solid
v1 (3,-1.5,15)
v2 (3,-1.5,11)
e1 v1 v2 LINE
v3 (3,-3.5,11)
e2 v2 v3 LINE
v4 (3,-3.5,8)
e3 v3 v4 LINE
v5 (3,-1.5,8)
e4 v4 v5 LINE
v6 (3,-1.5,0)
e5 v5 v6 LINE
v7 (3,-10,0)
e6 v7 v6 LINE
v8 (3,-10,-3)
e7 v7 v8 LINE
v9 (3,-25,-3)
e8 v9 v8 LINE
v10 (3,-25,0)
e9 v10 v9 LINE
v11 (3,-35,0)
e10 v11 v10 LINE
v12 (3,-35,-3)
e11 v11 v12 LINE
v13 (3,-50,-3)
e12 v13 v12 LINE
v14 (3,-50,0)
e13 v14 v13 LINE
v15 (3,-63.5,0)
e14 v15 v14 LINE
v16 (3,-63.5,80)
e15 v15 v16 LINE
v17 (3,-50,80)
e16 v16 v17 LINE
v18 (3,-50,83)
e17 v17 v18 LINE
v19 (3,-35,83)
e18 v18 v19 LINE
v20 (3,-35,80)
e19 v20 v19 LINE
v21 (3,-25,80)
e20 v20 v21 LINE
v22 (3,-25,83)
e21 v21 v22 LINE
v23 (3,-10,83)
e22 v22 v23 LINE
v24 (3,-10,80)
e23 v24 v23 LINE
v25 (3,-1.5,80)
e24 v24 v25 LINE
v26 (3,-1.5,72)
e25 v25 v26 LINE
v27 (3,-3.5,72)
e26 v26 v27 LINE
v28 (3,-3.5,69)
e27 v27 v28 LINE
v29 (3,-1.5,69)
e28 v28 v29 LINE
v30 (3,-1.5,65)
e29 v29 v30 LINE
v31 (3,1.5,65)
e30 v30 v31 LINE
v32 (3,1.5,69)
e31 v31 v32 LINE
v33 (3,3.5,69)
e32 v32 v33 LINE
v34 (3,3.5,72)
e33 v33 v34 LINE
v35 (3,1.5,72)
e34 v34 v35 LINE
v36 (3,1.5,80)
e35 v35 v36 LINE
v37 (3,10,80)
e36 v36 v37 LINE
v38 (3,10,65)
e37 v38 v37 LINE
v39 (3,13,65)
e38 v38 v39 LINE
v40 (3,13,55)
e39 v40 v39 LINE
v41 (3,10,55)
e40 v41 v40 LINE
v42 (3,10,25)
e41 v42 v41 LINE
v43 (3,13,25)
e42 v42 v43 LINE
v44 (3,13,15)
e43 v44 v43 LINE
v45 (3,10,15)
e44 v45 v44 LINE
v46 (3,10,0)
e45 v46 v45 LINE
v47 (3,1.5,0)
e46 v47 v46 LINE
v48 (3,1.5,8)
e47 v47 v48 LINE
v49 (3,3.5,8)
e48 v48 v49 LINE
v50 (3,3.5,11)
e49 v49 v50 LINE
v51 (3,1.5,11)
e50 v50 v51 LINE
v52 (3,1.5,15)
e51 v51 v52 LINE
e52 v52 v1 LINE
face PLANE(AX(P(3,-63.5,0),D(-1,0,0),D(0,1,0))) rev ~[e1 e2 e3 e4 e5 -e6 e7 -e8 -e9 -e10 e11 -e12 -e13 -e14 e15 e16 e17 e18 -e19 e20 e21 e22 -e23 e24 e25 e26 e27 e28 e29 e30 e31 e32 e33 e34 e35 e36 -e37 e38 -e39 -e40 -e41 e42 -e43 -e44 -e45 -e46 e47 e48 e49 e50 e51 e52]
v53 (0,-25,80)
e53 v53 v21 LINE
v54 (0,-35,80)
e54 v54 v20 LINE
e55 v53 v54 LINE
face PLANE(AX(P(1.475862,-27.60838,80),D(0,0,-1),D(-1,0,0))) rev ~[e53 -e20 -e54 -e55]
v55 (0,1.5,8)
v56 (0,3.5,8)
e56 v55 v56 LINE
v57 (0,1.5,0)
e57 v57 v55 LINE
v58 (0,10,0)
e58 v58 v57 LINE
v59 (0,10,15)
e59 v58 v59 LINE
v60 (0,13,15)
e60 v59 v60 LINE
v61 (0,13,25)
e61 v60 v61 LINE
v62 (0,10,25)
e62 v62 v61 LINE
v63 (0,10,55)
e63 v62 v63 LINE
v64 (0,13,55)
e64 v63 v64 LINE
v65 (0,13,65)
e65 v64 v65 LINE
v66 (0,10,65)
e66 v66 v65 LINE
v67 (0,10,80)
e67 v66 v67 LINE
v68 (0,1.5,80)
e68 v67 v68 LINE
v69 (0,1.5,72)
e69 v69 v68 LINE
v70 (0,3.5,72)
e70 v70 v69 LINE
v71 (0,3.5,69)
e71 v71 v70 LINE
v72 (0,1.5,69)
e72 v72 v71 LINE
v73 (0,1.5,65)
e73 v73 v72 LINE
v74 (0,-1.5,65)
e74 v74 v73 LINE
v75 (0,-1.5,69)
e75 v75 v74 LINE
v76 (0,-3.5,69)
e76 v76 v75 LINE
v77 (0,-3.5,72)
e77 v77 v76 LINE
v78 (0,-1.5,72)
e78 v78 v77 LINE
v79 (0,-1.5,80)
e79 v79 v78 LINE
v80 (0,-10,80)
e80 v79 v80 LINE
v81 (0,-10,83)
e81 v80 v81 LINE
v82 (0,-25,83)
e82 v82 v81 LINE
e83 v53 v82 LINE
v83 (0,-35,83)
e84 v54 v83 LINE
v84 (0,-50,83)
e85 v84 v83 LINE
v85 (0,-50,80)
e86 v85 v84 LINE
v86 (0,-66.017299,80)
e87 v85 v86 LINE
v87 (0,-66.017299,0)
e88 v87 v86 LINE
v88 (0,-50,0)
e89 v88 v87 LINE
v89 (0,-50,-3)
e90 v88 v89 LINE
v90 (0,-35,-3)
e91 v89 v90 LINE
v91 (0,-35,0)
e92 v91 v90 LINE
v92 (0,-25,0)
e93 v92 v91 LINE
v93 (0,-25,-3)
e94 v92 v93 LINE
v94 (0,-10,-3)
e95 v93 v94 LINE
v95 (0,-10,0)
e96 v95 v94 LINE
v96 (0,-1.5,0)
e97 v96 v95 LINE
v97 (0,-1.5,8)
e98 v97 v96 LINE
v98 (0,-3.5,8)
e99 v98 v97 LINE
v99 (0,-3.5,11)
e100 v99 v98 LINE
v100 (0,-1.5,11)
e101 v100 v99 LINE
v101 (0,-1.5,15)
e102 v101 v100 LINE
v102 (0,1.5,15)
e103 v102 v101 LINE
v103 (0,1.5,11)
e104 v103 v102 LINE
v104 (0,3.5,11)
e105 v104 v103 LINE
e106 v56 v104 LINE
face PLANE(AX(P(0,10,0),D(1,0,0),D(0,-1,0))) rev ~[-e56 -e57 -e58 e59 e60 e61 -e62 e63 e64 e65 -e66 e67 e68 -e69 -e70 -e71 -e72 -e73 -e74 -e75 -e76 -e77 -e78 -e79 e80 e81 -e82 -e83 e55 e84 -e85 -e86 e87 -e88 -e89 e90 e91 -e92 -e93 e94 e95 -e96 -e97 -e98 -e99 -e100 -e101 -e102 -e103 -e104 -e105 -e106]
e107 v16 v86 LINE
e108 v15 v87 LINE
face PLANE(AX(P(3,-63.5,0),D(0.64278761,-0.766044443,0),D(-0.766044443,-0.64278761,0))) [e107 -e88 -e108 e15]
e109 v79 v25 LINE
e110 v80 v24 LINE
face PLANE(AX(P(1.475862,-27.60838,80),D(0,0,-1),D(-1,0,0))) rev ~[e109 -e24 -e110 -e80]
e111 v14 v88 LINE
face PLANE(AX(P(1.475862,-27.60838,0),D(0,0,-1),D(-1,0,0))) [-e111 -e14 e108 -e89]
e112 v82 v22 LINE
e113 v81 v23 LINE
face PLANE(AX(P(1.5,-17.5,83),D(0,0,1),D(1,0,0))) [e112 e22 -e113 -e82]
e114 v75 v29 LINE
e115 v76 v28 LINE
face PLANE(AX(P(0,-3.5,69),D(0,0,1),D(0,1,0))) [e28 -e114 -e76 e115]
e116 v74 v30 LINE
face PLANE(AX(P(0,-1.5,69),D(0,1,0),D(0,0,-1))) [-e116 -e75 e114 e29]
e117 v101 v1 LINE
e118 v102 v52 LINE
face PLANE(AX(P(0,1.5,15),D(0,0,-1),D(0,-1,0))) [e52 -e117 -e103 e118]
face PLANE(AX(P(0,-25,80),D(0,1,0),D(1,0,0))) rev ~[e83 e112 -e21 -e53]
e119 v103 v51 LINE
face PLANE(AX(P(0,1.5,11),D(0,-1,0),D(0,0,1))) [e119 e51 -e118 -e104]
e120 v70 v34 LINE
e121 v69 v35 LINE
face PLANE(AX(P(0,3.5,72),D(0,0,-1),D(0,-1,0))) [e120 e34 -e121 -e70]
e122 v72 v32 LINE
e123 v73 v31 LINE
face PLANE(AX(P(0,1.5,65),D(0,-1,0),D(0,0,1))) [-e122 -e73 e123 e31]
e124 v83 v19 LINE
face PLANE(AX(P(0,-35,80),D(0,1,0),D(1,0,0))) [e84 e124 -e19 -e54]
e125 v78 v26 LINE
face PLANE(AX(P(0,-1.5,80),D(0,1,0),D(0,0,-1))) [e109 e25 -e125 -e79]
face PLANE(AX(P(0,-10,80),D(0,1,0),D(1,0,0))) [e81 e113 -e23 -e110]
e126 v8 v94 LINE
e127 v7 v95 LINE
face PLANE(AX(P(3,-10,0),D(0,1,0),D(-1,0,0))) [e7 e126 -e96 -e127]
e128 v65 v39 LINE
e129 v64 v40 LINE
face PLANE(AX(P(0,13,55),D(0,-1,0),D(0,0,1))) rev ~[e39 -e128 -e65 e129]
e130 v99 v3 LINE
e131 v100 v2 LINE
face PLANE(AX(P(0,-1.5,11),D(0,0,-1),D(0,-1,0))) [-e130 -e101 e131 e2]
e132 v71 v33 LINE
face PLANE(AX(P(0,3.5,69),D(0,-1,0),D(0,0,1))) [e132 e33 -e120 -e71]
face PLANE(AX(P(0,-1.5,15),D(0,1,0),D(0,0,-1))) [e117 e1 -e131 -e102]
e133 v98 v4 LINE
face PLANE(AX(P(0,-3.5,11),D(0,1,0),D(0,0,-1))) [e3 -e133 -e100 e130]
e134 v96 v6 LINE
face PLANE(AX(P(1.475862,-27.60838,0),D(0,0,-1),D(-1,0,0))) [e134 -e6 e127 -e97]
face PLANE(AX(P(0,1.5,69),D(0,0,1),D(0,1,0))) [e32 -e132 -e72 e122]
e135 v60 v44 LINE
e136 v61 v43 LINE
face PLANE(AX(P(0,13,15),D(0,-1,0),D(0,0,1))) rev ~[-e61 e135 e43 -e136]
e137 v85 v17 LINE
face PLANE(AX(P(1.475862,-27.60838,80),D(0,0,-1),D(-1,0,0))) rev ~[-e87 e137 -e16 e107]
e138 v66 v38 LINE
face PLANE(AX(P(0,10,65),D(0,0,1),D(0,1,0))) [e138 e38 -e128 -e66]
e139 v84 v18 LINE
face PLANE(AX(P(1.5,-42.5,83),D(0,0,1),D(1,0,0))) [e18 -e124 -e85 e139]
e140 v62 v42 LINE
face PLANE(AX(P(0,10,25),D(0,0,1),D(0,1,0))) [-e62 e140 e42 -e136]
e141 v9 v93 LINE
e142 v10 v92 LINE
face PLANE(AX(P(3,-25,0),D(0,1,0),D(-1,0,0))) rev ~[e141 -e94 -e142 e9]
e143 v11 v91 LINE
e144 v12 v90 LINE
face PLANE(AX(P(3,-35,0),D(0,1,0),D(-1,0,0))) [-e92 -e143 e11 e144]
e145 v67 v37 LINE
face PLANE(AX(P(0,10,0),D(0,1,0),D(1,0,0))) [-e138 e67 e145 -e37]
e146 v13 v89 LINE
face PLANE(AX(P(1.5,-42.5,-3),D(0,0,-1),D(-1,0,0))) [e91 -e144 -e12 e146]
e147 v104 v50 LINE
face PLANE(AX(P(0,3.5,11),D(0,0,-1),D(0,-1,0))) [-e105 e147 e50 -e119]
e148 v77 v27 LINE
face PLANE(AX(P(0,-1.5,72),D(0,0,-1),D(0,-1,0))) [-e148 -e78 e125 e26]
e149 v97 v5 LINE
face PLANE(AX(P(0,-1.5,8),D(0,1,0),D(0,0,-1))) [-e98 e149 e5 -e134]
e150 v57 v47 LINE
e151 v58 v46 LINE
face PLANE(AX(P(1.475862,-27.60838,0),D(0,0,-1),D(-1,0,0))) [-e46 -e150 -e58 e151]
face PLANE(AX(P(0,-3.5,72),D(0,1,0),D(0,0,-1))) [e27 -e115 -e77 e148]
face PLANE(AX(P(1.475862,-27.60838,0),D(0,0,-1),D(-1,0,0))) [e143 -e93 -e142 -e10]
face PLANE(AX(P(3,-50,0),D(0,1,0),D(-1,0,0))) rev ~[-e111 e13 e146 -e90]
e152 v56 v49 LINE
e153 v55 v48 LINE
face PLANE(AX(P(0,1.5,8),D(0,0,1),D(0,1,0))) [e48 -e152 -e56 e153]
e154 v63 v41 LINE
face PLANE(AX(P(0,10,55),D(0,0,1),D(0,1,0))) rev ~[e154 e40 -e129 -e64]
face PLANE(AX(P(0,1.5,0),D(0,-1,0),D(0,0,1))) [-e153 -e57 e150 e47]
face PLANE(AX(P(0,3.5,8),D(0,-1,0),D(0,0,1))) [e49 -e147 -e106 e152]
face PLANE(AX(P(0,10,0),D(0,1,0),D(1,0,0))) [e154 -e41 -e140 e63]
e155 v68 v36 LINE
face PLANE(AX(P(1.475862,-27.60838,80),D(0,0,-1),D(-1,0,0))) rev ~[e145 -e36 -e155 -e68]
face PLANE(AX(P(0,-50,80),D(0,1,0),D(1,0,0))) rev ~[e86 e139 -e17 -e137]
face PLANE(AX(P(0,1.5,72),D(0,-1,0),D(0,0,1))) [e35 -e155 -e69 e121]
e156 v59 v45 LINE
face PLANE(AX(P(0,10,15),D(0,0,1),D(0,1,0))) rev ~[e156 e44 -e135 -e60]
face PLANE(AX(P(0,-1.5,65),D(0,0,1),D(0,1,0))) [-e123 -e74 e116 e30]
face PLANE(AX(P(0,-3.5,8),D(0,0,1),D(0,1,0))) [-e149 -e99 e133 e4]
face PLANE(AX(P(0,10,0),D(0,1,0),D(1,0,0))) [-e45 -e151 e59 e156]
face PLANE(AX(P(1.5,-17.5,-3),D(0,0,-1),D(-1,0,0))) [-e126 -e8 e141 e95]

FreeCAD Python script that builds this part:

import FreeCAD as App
import Part
import Sketcher

V = App.Vector
Q = App.Units.Quantity


def add_polygon(sketch, points):
    """Adds a closed chain of lines whose ends are joined by coincident constraints."""
    first, n = sketch.GeometryCount, len(points)
    for a, b in zip(points, points[1:] + points[:1]):
        sketch.addGeometry(Part.LineSegment(App.Vector(*a, 0), App.Vector(*b, 0)), False)
    for i in range(n):
        sketch.addConstraint(Sketcher.Constraint("Coincident", first + i, 2, first + (i + 1) % n, 1))

doc = App.newDocument("Part")
params = doc.addObject("Spreadsheet::Sheet", "Params")
for row, (alias, value) in enumerate([
    ("sketch1_width", "3 mm"),
    ("sketch1_height", "73.5 mm"),
    ("pad1_length", "80 mm"),
    ("sketch2_width", "3 mm"),
    ("sketch2_height", "15 mm"),
    ("pad2_length", "3 mm"),
    ("sketch3_width", "3 mm"),
    ("sketch3_height", "15 mm"),
    ("pad3_length", "3 mm"),
    ("sketch4_width", "3 mm"),
    ("sketch4_width2", "2 mm"),
    ("sketch4_height", "8 mm"),
    ("sketch4_height2", "4 mm"),
    ("pocket1_length", "10 mm"),
    ("sketch5_width", "3 mm"),
    ("sketch5_height", "10 mm"),
    ("pad4_length", "3 mm"),
], start=1):
    params.set(f"A{row}", alias)
    params.set(f"B{row}", "=" + value)
    params.setAlias(f"B{row}", alias)

body = doc.addObject("PartDesign::Body", "Body")

sketch1 = body.newObject("Sketcher::SketchObject", "Sketch")
sketch1.AttachmentSupport = (doc.getObject("XY_Plane"), [""])
sketch1.MapMode = "FlatFace"
add_polygon(sketch1, [(3, -63.5), (3, 10), (0, 10), (0, -66.017299)])
sketch1.addConstraint([
    Sketcher.Constraint("Vertical", 0),
    Sketcher.Constraint("Horizontal", 1),
    Sketcher.Constraint("Vertical", 2),
    Sketcher.Constraint("PointOnObject", 1, 2, -2),
    Sketcher.Constraint("DistanceX", 1, 2, 1, 1, Q("3 mm")),
    Sketcher.Constraint("Angle", 3, Q("40 deg")),
    Sketcher.Constraint("DistanceY", 0, 1, 0, 2, Q("73.5 mm")),
    Sketcher.Constraint("DistanceY", -1, 1, 0, 2, Q("10 mm")),
])
sketch1.setExpression("Constraints[8]", "Params.sketch1_width")
sketch1.setExpression("Constraints[10]", "Params.sketch1_height")
pad1 = body.newObject("PartDesign::Pad", "Pad")
pad1.Profile = sketch1
pad1.setExpression("Length", "Params.pad1_length")

sketch2 = body.newObject("Sketcher::SketchObject", "Sketch001")
sketch2.AttachmentSupport = (doc.getObject("XY_Plane"), [""])
sketch2.MapMode = "FlatFace"
sketch2.AttachmentOffset = App.Placement(V(0, 0, 80), App.Rotation())
add_polygon(sketch2, [(0, -10), (0, -25), (3, -25), (3, -10)])
add_polygon(sketch2, [(0, -35), (0, -50), (3, -50), (3, -35)])
sketch2.addConstraint([
    Sketcher.Constraint("Vertical", 0),
    Sketcher.Constraint("Horizontal", 1),
    Sketcher.Constraint("Vertical", 2),
    Sketcher.Constraint("Horizontal", 3),
    Sketcher.Constraint("Vertical", 4),
    Sketcher.Constraint("Horizontal", 5),
    Sketcher.Constraint("Vertical", 6),
    Sketcher.Constraint("Horizontal", 7),
    Sketcher.Constraint("PointOnObject", 0, 2, -2),
    Sketcher.Constraint("PointOnObject", 4, 2, -2),
    Sketcher.Constraint("Vertical", 2, 2, 5, 2),
    Sketcher.Constraint("Equal", 2, 4),
    Sketcher.Constraint("DistanceX", 1, 1, 1, 2, Q("3 mm")),
    Sketcher.Constraint("DistanceY", 0, 2, 0, 1, Q("15 mm")),
    Sketcher.Constraint("DistanceY", 0, 2, -1, 1, Q("25 mm")),
    Sketcher.Constraint("DistanceY", 4, 2, -1, 1, Q("50 mm")),
])
sketch2.setExpression("Constraints[20]", "Params.sketch2_width")
sketch2.setExpression("Constraints[21]", "Params.sketch2_height")
pad2 = body.newObject("PartDesign::Pad", "Pad001")
pad2.Profile = sketch2
pad2.setExpression("Length", "Params.pad2_length")

sketch3 = body.newObject("Sketcher::SketchObject", "Sketch002")
sketch3.AttachmentSupport = (doc.getObject("XY_Plane"), [""])
sketch3.MapMode = "FlatFace"
add_polygon(sketch3, [(3, -10), (3, -25), (0, -25), (0, -10)])
add_polygon(sketch3, [(3, -35), (3, -50), (0, -50), (0, -35)])
sketch3.addConstraint([
    Sketcher.Constraint("Vertical", 0),
    Sketcher.Constraint("Horizontal", 1),
    Sketcher.Constraint("Vertical", 2),
    Sketcher.Constraint("Horizontal", 3),
    Sketcher.Constraint("Vertical", 4),
    Sketcher.Constraint("Horizontal", 5),
    Sketcher.Constraint("Vertical", 6),
    Sketcher.Constraint("Horizontal", 7),
    Sketcher.Constraint("PointOnObject", 1, 2, -2),
    Sketcher.Constraint("PointOnObject", 5, 2, -2),
    Sketcher.Constraint("Vertical", 3, 2, 4, 2),
    Sketcher.Constraint("Equal", 2, 4),
    Sketcher.Constraint("DistanceX", 1, 2, 1, 1, Q("3 mm")),
    Sketcher.Constraint("DistanceY", 0, 2, 0, 1, Q("15 mm")),
    Sketcher.Constraint("DistanceY", 0, 2, -1, 1, Q("25 mm")),
    Sketcher.Constraint("DistanceY", 4, 2, -1, 1, Q("50 mm")),
])
sketch3.setExpression("Constraints[20]", "Params.sketch3_width")
sketch3.setExpression("Constraints[21]", "Params.sketch3_height")
pad3 = body.newObject("PartDesign::Pad", "Pad002")
pad3.Profile = sketch3
pad3.setExpression("Length", "Params.pad3_length")
pad3.Reversed = True

sketch4 = body.newObject("Sketcher::SketchObject", "Sketch003")
sketch4.AttachmentSupport = (doc.getObject("YZ_Plane"), [""])
sketch4.MapMode = "FlatFace"
add_polygon(sketch4, [(1.5, 8), (1.5, 0), (-1.5, 0), (-1.5, 8), (-3.5, 8), (-3.5, 11), (-1.5, 11), (-1.5, 15), (1.5, 15), (1.5, 11), (3.5, 11), (3.5, 8)])
add_polygon(sketch4, [(-1.5, 65), (-1.5, 69), (-3.5, 69), (-3.5, 72), (-1.5, 72), (-1.5, 80), (1.5, 80), (1.5, 72), (3.5, 72), (3.5, 69), (1.5, 69), (1.5, 65)])
sketch4.addConstraint([
    Sketcher.Constraint("Vertical", 0),
    Sketcher.Constraint("Horizontal", 1),
    Sketcher.Constraint("Vertical", 2),
    Sketcher.Constraint("Horizontal", 3),
    Sketcher.Constraint("Vertical", 4),
    Sketcher.Constraint("Horizontal", 5),
    Sketcher.Constraint("Vertical", 6),
    Sketcher.Constraint("Horizontal", 7),
    Sketcher.Constraint("Vertical", 8),
    Sketcher.Constraint("Horizontal", 9),
    Sketcher.Constraint("Vertical", 10),
    Sketcher.Constraint("Horizontal", 11),
    Sketcher.Constraint("Vertical", 12),
    Sketcher.Constraint("Horizontal", 13),
    Sketcher.Constraint("Vertical", 14),
    Sketcher.Constraint("Horizontal", 15),
    Sketcher.Constraint("Vertical", 16),
    Sketcher.Constraint("Horizontal", 17),
    Sketcher.Constraint("Vertical", 18),
    Sketcher.Constraint("Horizontal", 19),
    Sketcher.Constraint("Vertical", 20),
    Sketcher.Constraint("Horizontal", 21),
    Sketcher.Constraint("Vertical", 22),
    Sketcher.Constraint("Horizontal", 23),
    Sketcher.Constraint("Symmetric", 0, 2, 1, 2, -1, 1),
    Sketcher.Constraint("Symmetric", 5, 2, 8, 2, -2),
    Sketcher.Constraint("Symmetric", 3, 2, 10, 2, -2),
    Sketcher.Constraint("Symmetric", 15, 2, 18, 2, -2),
    Sketcher.Constraint("Symmetric", 13, 2, 20, 2, -2),
    Sketcher.Constraint("Vertical", 2, 2, 5, 2),
    Sketcher.Constraint("Vertical", 6, 2, 12, 2),
    Sketcher.Constraint("Vertical", 4, 2, 13, 2),
    Sketcher.Constraint("Vertical", 12, 2, 15, 2),
    Sketcher.Constraint("Vertical", 18, 2, 21, 2),
    Sketcher.Constraint("Equal", 23, 4),
    Sketcher.Constraint("Equal", 8, 12),
    Sketcher.Constraint("Equal", 10, 14),
    Sketcher.Constraint("Equal", 2, 16),
    Sketcher.Constraint("DistanceX", 1, 2, 1, 1, Q("3 mm")),
    Sketcher.Constraint("DistanceX", 3, 2, 3, 1, Q("2 mm")),
    Sketcher.Constraint("DistanceY", 0, 2, 0, 1, Q("8 mm")),
    Sketcher.Constraint("DistanceY", 6, 1, 6, 2, Q("4 mm")),
    Sketcher.Constraint("DistanceY", -1, 1, 12, 2, Q("69 mm")),
])
sketch4.setExpression("Constraints[62]", "Params.sketch4_width")
sketch4.setExpression("Constraints[63]", "Params.sketch4_width2")
sketch4.setExpression("Constraints[64]", "Params.sketch4_height")
sketch4.setExpression("Constraints[65]", "Params.sketch4_height2")
pocket1 = body.newObject("PartDesign::Pocket", "Pocket")
pocket1.Profile = sketch4
pocket1.setExpression("Length", "Params.pocket1_length")
pocket1.Reversed = True

sketch5 = body.newObject("Sketcher::SketchObject", "Sketch004")
sketch5.AttachmentSupport = (doc.getObject("YZ_Plane"), [""])
sketch5.MapMode = "FlatFace"
add_polygon(sketch5, [(13, 15), (10, 15), (10, 25), (13, 25)])
add_polygon(sketch5, [(13, 55), (10, 55), (10, 65), (13, 65)])
sketch5.addConstraint([
    Sketcher.Constraint("Horizontal", 0),
    Sketcher.Constraint("Vertical", 1),
    Sketcher.Constraint("Horizontal", 2),
    Sketcher.Constraint("Vertical", 3),
    Sketcher.Constraint("Horizontal", 4),
    Sketcher.Constraint("Vertical", 5),
    Sketcher.Constraint("Horizontal", 6),
    Sketcher.Constraint("Vertical", 7),
    Sketcher.Constraint("Vertical", 1, 2, 4, 2),
    Sketcher.Constraint("Vertical", 3, 2, 6, 2),
    Sketcher.Constraint("Equal", 3, 5),
    Sketcher.Constraint("DistanceX", 0, 2, 0, 1, Q("3 mm")),
    Sketcher.Constraint("DistanceY", 1, 1, 1, 2, Q("10 mm")),
    Sketcher.Constraint("DistanceX", -1, 1, 0, 2, Q("10 mm")),
    Sketcher.Constraint("DistanceY", -1, 1, 0, 2, Q("15 mm")),
    Sketcher.Constraint("DistanceY", -1, 1, 4, 2, Q("55 mm")),
])
sketch5.setExpression("Constraints[19]", "Params.sketch5_width")
sketch5.setExpression("Constraints[20]", "Params.sketch5_height")
pad4 = body.newObject("PartDesign::Pad", "Pad003")
pad4.Profile = sketch5
pad4.setExpression("Length", "Params.pad4_length")

doc.recompute()
